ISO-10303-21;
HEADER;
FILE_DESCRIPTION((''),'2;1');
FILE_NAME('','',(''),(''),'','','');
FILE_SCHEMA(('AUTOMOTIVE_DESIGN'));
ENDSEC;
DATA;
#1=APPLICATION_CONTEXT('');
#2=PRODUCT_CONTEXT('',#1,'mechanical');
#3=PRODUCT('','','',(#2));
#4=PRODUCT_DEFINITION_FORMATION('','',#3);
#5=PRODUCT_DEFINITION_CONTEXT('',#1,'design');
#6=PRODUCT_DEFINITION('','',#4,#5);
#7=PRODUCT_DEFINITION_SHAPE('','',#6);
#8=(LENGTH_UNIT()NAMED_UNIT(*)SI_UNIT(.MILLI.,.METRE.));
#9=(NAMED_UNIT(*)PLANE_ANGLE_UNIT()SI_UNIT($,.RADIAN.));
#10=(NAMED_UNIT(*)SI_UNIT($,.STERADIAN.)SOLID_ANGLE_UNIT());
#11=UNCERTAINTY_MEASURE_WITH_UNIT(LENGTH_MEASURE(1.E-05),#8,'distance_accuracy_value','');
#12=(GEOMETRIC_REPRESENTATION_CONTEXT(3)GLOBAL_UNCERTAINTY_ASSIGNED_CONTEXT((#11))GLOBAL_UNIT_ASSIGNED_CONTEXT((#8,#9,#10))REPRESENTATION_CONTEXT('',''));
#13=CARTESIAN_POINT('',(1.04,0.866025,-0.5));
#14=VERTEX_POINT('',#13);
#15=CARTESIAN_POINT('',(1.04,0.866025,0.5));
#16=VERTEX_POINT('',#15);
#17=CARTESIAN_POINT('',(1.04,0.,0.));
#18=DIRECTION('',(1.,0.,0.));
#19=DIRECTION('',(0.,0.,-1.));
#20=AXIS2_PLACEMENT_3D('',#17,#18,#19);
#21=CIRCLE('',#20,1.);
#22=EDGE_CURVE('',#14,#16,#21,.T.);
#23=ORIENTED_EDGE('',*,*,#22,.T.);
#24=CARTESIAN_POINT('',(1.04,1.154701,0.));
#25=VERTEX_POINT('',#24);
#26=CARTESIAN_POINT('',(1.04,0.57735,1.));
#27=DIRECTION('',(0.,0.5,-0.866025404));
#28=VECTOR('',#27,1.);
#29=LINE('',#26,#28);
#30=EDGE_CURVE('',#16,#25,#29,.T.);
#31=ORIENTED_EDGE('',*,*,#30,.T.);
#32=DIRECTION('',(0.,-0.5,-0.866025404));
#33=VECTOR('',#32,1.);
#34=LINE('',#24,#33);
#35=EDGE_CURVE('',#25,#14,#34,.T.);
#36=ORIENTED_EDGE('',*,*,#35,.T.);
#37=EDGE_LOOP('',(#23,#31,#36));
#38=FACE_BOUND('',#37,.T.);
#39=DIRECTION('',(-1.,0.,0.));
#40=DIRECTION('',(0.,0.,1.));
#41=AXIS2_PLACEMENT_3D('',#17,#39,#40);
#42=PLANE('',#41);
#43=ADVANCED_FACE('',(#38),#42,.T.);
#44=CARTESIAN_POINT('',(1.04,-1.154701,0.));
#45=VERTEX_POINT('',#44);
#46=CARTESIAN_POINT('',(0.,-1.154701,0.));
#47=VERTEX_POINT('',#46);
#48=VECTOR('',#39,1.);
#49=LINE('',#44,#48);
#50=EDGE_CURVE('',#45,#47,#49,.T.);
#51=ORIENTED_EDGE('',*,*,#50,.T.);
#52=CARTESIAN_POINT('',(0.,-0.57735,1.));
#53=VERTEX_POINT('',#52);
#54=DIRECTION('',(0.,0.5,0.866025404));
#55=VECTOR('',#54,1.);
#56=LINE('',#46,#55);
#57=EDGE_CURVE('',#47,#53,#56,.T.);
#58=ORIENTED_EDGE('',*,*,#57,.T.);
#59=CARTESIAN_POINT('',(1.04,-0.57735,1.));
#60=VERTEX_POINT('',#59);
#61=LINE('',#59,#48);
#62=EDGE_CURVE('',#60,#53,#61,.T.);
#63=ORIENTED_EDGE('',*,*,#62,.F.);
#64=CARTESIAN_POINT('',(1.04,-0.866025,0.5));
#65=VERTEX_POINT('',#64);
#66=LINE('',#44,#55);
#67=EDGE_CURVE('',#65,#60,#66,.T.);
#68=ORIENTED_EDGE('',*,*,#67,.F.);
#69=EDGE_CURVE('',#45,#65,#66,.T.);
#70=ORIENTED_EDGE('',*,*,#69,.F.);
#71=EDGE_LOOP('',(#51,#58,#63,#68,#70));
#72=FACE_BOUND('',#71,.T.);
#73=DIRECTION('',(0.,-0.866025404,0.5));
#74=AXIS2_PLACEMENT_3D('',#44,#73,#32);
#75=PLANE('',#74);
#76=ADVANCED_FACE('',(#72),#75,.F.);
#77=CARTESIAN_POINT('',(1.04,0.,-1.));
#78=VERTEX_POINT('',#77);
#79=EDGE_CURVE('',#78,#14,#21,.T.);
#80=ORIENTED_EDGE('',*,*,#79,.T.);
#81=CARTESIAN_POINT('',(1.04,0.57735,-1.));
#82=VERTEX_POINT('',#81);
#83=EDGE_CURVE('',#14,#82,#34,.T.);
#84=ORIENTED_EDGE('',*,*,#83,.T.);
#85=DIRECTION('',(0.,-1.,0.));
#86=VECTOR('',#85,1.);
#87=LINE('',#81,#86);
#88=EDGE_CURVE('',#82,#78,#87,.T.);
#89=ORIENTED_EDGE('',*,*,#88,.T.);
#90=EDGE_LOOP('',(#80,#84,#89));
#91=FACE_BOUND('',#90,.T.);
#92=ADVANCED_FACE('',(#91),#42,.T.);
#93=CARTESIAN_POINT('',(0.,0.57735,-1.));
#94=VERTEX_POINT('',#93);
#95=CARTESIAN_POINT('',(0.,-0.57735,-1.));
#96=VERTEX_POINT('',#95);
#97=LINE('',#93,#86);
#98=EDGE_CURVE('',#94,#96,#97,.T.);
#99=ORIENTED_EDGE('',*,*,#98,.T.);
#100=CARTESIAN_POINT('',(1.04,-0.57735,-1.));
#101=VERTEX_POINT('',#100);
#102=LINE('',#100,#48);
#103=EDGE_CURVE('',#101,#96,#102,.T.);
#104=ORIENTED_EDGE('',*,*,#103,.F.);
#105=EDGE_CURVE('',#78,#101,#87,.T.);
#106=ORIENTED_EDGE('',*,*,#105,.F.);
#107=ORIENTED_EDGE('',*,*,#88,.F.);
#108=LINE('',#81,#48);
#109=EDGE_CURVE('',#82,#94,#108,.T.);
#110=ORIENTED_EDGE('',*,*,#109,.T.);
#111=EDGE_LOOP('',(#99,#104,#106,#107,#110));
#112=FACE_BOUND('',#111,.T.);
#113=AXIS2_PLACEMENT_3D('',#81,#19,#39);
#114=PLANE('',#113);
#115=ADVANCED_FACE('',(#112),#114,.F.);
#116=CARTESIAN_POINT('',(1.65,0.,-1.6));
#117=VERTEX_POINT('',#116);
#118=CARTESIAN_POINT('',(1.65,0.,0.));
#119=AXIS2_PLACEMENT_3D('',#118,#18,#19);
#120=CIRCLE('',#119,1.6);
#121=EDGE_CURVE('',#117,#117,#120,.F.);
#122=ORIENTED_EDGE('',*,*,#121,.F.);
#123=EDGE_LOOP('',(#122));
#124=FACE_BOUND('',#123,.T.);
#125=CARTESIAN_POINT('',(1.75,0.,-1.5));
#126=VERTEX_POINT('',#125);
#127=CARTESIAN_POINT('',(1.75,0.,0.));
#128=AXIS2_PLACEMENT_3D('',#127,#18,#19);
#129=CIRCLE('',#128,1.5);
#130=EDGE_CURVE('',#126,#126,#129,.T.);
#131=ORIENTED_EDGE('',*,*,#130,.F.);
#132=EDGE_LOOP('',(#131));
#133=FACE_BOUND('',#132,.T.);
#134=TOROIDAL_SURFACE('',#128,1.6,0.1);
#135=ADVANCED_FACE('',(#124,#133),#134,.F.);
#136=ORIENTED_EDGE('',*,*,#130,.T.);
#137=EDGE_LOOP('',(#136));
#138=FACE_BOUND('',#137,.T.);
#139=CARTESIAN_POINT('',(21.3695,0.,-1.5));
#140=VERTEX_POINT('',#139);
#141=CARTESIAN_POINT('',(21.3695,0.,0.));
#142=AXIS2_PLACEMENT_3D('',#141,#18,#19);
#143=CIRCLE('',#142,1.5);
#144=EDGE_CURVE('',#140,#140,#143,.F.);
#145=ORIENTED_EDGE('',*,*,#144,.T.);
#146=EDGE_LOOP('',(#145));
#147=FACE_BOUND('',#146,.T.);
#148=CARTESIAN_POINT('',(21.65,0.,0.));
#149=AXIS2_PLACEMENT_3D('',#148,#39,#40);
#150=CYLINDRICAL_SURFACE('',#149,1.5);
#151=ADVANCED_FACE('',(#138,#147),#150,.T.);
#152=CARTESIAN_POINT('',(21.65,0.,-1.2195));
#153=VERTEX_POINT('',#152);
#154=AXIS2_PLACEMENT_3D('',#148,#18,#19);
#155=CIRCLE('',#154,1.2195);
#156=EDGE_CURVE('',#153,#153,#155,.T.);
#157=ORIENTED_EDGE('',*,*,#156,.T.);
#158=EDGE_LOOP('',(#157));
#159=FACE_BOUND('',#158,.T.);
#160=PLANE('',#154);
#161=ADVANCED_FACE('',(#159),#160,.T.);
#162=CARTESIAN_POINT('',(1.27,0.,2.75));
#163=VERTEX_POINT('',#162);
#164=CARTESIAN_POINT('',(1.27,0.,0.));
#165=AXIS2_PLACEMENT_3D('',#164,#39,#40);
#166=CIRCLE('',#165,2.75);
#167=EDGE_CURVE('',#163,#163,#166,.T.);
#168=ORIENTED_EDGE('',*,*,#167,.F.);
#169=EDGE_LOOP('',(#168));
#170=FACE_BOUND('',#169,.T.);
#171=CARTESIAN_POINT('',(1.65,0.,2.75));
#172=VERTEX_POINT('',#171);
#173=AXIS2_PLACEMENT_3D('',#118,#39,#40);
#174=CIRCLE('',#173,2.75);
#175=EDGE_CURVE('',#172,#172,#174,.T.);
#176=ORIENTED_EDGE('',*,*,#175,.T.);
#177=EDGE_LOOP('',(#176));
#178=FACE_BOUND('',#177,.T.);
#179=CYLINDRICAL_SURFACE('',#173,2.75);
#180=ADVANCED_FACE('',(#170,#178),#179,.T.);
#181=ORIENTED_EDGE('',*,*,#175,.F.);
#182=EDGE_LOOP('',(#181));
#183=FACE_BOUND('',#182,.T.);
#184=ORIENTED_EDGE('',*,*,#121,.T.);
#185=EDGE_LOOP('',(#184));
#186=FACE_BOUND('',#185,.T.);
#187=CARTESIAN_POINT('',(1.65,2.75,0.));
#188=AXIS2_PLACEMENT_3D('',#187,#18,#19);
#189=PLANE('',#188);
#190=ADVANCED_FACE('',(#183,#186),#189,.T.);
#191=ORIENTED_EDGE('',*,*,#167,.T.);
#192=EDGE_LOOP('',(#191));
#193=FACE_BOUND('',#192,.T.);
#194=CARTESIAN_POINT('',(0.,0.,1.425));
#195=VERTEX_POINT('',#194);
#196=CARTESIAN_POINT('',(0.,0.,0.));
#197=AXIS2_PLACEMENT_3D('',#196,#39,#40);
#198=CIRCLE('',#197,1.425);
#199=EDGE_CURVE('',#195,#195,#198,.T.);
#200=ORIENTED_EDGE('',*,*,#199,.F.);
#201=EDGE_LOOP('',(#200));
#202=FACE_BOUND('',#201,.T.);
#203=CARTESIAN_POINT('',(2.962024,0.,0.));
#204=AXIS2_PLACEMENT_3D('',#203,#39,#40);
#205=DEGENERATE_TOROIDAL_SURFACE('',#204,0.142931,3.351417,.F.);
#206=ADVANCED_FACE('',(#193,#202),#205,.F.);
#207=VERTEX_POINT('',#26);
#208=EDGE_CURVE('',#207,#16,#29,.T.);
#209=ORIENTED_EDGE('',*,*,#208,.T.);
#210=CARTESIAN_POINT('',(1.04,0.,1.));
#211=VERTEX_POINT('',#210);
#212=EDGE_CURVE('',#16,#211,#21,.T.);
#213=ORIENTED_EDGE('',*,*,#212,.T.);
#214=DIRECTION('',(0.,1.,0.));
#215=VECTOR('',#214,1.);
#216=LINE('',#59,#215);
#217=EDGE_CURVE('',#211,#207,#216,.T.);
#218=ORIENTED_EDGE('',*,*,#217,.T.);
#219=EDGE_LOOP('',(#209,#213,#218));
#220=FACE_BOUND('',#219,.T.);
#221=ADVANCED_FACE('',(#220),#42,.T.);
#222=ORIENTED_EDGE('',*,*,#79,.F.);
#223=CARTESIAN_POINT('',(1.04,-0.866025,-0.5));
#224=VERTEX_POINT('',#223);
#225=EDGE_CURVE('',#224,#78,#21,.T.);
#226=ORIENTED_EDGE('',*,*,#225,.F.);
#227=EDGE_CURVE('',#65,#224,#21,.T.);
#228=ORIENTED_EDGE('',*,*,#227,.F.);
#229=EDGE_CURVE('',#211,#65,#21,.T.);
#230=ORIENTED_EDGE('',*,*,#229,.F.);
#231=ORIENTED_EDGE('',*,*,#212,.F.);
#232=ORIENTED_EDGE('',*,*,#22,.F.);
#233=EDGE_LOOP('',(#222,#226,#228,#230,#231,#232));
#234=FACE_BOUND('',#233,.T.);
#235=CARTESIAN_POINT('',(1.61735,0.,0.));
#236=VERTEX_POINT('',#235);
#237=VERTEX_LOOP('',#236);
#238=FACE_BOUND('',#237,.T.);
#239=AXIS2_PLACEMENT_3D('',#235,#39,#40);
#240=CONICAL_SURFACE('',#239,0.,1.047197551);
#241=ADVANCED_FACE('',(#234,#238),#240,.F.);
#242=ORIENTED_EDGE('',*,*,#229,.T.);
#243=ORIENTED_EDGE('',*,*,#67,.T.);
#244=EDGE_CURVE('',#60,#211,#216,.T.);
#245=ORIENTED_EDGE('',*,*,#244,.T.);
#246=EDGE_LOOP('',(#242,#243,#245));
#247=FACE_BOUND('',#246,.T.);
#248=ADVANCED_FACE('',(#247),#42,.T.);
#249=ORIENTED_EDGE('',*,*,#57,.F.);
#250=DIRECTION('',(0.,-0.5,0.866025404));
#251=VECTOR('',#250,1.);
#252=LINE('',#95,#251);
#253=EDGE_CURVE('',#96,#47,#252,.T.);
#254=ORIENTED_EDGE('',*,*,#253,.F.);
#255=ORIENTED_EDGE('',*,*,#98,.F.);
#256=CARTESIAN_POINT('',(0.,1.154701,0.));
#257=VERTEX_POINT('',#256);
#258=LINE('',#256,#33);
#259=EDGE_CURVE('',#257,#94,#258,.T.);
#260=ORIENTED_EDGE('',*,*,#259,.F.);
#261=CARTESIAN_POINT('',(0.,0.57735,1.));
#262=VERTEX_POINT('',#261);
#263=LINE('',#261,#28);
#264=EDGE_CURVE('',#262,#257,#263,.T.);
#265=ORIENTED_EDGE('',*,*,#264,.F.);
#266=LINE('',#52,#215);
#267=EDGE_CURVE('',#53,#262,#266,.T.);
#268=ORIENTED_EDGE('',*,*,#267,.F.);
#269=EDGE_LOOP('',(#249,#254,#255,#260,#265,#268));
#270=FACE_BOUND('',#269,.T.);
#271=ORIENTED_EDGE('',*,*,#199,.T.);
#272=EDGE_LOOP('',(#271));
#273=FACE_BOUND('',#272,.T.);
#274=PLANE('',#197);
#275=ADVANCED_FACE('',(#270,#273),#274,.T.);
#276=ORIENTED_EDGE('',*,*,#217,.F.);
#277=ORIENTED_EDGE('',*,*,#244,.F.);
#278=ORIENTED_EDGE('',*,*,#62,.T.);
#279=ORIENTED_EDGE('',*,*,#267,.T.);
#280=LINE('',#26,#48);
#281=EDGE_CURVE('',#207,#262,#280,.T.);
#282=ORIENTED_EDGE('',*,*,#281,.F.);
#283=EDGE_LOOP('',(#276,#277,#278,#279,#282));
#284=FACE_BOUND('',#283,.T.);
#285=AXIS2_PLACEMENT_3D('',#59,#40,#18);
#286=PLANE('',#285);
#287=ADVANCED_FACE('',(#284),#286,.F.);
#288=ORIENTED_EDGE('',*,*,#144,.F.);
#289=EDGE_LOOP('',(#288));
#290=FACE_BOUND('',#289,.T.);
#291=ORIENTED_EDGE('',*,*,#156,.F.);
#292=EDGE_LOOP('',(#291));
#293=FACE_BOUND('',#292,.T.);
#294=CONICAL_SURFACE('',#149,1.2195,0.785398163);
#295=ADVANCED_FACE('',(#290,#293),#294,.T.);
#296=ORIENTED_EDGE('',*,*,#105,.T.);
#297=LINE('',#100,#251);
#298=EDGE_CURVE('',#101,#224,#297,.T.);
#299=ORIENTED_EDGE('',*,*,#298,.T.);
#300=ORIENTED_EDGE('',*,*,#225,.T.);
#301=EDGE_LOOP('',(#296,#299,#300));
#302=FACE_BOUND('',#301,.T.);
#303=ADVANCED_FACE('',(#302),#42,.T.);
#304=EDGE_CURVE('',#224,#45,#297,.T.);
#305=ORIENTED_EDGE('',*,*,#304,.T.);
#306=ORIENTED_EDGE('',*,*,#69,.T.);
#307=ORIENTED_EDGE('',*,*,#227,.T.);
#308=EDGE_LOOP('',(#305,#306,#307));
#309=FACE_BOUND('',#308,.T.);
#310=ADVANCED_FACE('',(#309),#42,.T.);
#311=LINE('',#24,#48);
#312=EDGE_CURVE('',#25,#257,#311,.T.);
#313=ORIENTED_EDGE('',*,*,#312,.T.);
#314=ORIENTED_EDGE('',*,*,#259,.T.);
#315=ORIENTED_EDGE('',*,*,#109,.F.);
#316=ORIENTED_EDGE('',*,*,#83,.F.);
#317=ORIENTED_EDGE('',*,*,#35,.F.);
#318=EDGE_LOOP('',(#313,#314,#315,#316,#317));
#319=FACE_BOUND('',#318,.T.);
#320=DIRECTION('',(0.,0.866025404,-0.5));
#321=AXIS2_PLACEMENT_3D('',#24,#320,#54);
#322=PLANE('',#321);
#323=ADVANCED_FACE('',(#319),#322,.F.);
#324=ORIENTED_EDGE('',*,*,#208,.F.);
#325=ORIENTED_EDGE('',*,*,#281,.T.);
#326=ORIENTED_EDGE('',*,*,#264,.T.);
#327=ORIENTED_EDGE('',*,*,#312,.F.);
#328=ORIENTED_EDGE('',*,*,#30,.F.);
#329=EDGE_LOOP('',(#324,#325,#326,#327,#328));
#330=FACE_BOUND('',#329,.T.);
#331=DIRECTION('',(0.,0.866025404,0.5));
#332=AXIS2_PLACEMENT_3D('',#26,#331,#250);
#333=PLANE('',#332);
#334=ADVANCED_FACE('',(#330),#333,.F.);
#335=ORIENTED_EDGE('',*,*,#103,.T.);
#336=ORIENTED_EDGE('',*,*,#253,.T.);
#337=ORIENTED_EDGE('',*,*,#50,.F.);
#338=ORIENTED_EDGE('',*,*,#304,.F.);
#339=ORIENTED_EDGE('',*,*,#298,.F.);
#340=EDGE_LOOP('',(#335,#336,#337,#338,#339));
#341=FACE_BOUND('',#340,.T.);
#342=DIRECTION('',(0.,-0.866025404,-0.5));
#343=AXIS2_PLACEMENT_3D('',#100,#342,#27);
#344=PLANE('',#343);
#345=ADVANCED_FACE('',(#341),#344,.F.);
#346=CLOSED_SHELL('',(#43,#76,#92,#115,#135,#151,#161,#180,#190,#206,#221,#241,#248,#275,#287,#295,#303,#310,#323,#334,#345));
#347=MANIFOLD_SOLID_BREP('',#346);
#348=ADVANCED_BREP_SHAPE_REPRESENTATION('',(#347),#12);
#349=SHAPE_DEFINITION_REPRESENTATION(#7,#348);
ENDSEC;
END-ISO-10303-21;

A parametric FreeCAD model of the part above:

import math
import FreeCAD as App
import Part
import Sketcher
from FreeCAD import Vector
Q = App.Units.Quantity


def edges_at(feature, points):
    """Names of the edges that pass closest to the given points."""
    edges = feature.Shape.Edges
    near = lambda p: min(range(len(edges)), key=lambda i: edges[i].distToShape(Part.Vertex(*p))[0])
    return sorted({f"Edge{near(p) + 1}" for p in points})


def add_polygon(sketch, points):
    """Adds a closed chain of lines whose ends are joined by coincident constraints."""
    first, n = sketch.GeometryCount, len(points)
    for a, b in zip(points, points[1:] + points[:1]):
        sketch.addGeometry(Part.LineSegment(App.Vector(*a, 0), App.Vector(*b, 0)), False)
    for i in range(n):
        sketch.addConstraint(Sketcher.Constraint("Coincident", first + i, 2, first + (i + 1) % n, 1))

doc = App.newDocument("Part")
body = doc.addObject("PartDesign::Body", "Body")

sketch1 = body.newObject("Sketcher::SketchObject", "Sketch")
sketch1.AttachmentSupport = (doc.getObject("XY_Plane"), [""])
sketch1.MapMode = "FlatFace"
sketch1.addGeometry(Part.LineSegment(Vector(1.65, 2.75, 0), Vector(1.65, 0, 0)), False)
sketch1.addGeometry(Part.LineSegment(Vector(1.65, 0, 0), Vector(0, 0, 0)), False)
sketch1.addGeometry(Part.LineSegment(Vector(0, 0, 0), Vector(0, 1.43, 0)), False)
sketch1.addGeometry(Part.ArcOfCircle(Part.Circle(Vector(2.96, -0.14, 0), Vector(0, 0, 1), 3.35), math.radians(120), math.radians(152)), False)
sketch1.addGeometry(Part.LineSegment(Vector(1.27, 2.75, 0), Vector(1.65, 2.75, 0)), False)
sketch1.addConstraint(Sketcher.Constraint("Coincident", 0, 2, 1, 1))
sketch1.addConstraint(Sketcher.Constraint("Coincident", 1, 2, 2, 1))
sketch1.addConstraint(Sketcher.Constraint("Coincident", 2, 2, 3, 2))
sketch1.addConstraint(Sketcher.Constraint("Coincident", 3, 1, 4, 1))
sketch1.addConstraint(Sketcher.Constraint("Coincident", 4, 2, 0, 1))
sketch1.addConstraint(Sketcher.Constraint("Vertical", 0))
sketch1.addConstraint(Sketcher.Constraint("Horizontal", 1))
sketch1.addConstraint(Sketcher.Constraint("Vertical", 2))
sketch1.addConstraint(Sketcher.Constraint("Horizontal", 4))
sketch1.addConstraint(Sketcher.Constraint("Coincident", 1, 2, -1, 1))
sketch1.addConstraint(Sketcher.Constraint("DistanceX", 1, 2, 1, 1, Q("1.65 mm")))
sketch1.addConstraint(Sketcher.Constraint("DistanceX", 4, 1, 4, 2, Q("0.38 mm")))
sketch1.addConstraint(Sketcher.Constraint("DistanceY", 0, 2, 0, 1, Q("2.75 mm")))
sketch1.addConstraint(Sketcher.Constraint("DistanceY", 2, 1, 2, 2, Q("1.425 mm")))
sketch1.addConstraint(Sketcher.Constraint("Radius", 3, Q("3.351417 mm")))
revolution = body.newObject("PartDesign::Revolution", "Revolution")
revolution.Profile = sketch1
revolution.ReferenceAxis = (sketch1, ["H_Axis"])
revolution.Angle = 360

sketch2 = body.newObject("Sketcher::SketchObject", "Sketch001")
sketch2.AttachmentSupport = (doc.getObject("YZ_Plane"), [""])
sketch2.MapMode = "FlatFace"
add_polygon(sketch2, [(0.6, -1), (-0.6, -1), (-1.2, 0), (-0.6, 1), (0.6, 1), (1.2, 0)])
sketch2.addConstraint(Sketcher.Constraint("Horizontal", 0))
sketch2.addConstraint(Sketcher.Constraint("Horizontal", 3))
sketch2.addConstraint(Sketcher.Constraint("Symmetric", 0, 2, 3, 2, -1, 1))
sketch2.addConstraint(Sketcher.Constraint("Symmetric", 1, 2, 4, 2, -1, 1))
sketch2.addConstraint(Sketcher.Constraint("PointOnObject", 1, 2, -1))
sketch2.addConstraint(Sketcher.Constraint("Parallel", 2, 5))
sketch2.addConstraint(Sketcher.Constraint("Vertical", 0, 2, 2, 2))
sketch2.addConstraint(Sketcher.Constraint("Angle", 1, Q("120 deg")))
sketch2.addConstraint(Sketcher.Constraint("DistanceY", 0, 2, -1, 1, Q("1 mm")))
sketch2.addConstraint(Sketcher.Constraint("DistanceX", 0, 2, 0, 1, Q("1.154701 mm")))
pocket1 = body.newObject("PartDesign::Pocket", "Pocket")
pocket1.Profile = sketch2
pocket1.Length = 1.04
pocket1.Reversed = True

sketch3 = body.newObject("Sketcher::SketchObject", "Sketch002")
sketch3.AttachmentSupport = (doc.getObject("XY_Plane"), [""])
sketch3.MapMode = "FlatFace"
add_polygon(sketch3, [(1, 1), (1, 0), (1.6, 0)])
sketch3.addConstraint(Sketcher.Constraint("Vertical", 0))
sketch3.addConstraint(Sketcher.Constraint("Horizontal", 1))
sketch3.addConstraint(Sketcher.Constraint("PointOnObject", 0, 2, -1))
sketch3.addConstraint(Sketcher.Constraint("DistanceY", 0, 2, 0, 1, Q("1 mm")))
sketch3.addConstraint(Sketcher.Constraint("Angle", 2, Q("120 deg")))
sketch3.addConstraint(Sketcher.Constraint("DistanceX", -1, 1, 0, 2, Q("1.04 mm")))
groove = body.newObject("PartDesign::Groove", "Groove")
groove.Profile = sketch3
groove.ReferenceAxis = (sketch3, ["H_Axis"])
groove.Angle = 360

sketch4 = body.newObject("Sketcher::SketchObject", "Sketch003")
sketch4.AttachmentSupport = (doc.getObject("YZ_Plane"), [""])
sketch4.MapMode = "FlatFace"
sketch4.AttachmentOffset = App.Placement(Vector(0, 0, 1.65), App.Rotation())
sketch4.addGeometry(Part.Circle(Vector(0, 0, 0), Vector(0, 0, 1), 1.5), False)
sketch4.addConstraint(Sketcher.Constraint("Coincident", 0, 3, -1, 1))
sketch4.addConstraint(Sketcher.Constraint("Diameter", 0, Q("3 mm")))
pad1 = body.newObject("PartDesign::Pad", "Pad")
pad1.Profile = sketch4
pad1.Length = 20
doc.recompute()

fillet = body.newObject("PartDesign::Fillet", "Fillet")
fillet.Base = (pad1, edges_at(pad1, [(1.65, 0, 1.5)]))
fillet.Radius = 0.1
doc.recompute()

chamfer = body.newObject("PartDesign::Chamfer", "Chamfer")
chamfer.Base = (fillet, edges_at(fillet, [(21.65, 0, 1.5)]))
chamfer.Size = 0.2805

doc.recompute()
